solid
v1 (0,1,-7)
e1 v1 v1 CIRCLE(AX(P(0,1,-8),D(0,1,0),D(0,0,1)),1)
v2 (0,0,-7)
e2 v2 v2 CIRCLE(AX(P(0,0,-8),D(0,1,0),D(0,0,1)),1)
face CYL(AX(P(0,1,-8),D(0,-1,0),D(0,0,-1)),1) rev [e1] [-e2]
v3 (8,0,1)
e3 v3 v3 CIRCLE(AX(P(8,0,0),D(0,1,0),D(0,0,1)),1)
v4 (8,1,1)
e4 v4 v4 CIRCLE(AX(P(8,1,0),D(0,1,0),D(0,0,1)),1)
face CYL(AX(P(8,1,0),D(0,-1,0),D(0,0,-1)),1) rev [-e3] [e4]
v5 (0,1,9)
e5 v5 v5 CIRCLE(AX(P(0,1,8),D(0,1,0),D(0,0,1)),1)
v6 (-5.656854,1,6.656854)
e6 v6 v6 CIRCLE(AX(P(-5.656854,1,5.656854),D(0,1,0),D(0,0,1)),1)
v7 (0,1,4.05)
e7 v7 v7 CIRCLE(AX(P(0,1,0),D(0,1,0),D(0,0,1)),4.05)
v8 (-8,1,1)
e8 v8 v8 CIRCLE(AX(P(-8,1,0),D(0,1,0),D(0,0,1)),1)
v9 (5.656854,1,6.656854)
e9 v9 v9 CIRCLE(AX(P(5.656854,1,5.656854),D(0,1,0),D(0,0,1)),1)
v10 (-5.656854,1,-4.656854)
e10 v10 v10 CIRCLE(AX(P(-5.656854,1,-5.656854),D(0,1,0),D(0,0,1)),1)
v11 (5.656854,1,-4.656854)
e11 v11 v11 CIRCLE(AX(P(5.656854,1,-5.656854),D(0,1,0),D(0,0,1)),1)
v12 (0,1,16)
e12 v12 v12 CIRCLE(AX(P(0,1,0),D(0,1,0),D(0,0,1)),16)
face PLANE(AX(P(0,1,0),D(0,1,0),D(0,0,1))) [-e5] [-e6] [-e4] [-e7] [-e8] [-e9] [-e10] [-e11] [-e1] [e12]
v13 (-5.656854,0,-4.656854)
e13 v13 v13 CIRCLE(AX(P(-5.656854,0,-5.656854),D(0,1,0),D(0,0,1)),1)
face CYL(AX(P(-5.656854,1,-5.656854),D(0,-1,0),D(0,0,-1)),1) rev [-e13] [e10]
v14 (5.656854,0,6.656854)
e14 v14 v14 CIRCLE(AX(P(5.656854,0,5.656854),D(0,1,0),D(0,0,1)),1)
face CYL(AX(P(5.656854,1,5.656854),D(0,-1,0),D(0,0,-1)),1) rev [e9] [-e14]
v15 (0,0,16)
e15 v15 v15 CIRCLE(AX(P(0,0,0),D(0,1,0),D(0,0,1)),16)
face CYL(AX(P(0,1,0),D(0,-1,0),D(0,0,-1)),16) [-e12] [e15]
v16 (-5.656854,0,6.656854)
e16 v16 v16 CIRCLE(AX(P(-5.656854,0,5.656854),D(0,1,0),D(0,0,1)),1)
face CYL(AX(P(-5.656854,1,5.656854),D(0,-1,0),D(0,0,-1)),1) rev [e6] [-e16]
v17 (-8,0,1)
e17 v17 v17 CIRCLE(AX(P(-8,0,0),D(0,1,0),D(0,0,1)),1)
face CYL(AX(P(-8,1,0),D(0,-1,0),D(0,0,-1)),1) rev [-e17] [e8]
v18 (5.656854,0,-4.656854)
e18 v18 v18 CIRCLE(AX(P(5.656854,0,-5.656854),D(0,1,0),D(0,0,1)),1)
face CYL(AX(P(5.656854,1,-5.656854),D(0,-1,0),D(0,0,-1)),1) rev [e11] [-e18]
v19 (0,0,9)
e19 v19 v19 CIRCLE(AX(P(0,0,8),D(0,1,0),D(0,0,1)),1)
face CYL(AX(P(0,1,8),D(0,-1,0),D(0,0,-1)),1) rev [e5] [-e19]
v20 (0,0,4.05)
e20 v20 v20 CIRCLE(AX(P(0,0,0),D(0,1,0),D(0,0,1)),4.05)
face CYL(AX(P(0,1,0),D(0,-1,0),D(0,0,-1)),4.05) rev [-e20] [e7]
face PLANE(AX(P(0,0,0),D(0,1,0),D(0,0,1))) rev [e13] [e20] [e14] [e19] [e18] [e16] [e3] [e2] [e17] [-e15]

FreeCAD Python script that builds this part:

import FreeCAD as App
import Part
import Sketcher
from FreeCAD import Vector
Q = App.Units.Quantity

doc = App.newDocument("Part")
body = doc.addObject("PartDesign::Body", "Body")

sketch1 = body.newObject("Sketcher::SketchObject", "Sketch")
sketch1.AttachmentSupport = (doc.getObject("XZ_Plane"), [""])
sketch1.MapMode = "FlatFace"
sketch1.addGeometry([
    Part.Circle(Vector(0, 0, 0), Vector(0, 0, 1), 16),
    Part.Circle(Vector(-5.7, -5.7, 0), Vector(0, 0, 1), 1),
    Part.Circle(Vector(0, -8, 0), Vector(0, 0, 1), 1),
    Part.Circle(Vector(-8, 0, 0), Vector(0, 0, 1), 1),
    Part.Circle(Vector(-5.7, 5.7, 0), Vector(0, 0, 1), 1),
    Part.Circle(Vector(5.7, -5.7, 0), Vector(0, 0, 1), 1),
    Part.Circle(Vector(0, 0, 0), Vector(0, 0, 1), 4),
    Part.Circle(Vector(0, 8, 0), Vector(0, 0, 1), 1),
    Part.Circle(Vector(8, 0, 0), Vector(0, 0, 1), 1),
    Part.Circle(Vector(5.7, 5.7, 0), Vector(0, 0, 1), 1),
], False)
sketch1.addConstraint([
    Sketcher.Constraint("Coincident", 0, 3, -1, 1),
    Sketcher.Constraint("Coincident", 6, 3, -1, 1),
    Sketcher.Constraint("Equal", 1, 2),
    Sketcher.Constraint("Equal", 2, 3),
    Sketcher.Constraint("Equal", 3, 4),
    Sketcher.Constraint("Equal", 4, 5),
    Sketcher.Constraint("Equal", 5, 7),
    Sketcher.Constraint("Equal", 7, 8),
    Sketcher.Constraint("Equal", 8, 9),
    Sketcher.Constraint("Symmetric", 4, 3, 5, 3, -1, 1),
    Sketcher.Constraint("Symmetric", 2, 3, 7, 3, -1, 1),
    Sketcher.Constraint("Symmetric", 3, 3, 8, 3, -1, 1),
    Sketcher.Constraint("Symmetric", 1, 3, 9, 3, -1, 1),
    Sketcher.Constraint("Symmetric", 1, 3, 5, 3, -2),
    Sketcher.Constraint("PointOnObject", 2, 3, -2),
    Sketcher.Constraint("PointOnObject", 3, 3, -1),
    Sketcher.Constraint("Diameter", 0, Q("32 mm")),
    Sketcher.Constraint("Diameter", 1, Q("2 mm")),
    Sketcher.Constraint("Diameter", 6, Q("8.1 mm")),
    Sketcher.Constraint("DistanceY", 2, 3, -1, 1, Q("8 mm")),
    Sketcher.Constraint("DistanceX", 3, 3, -1, 1, Q("8 mm")),
    Sketcher.Constraint("DistanceY", 1, 3, 4, 3, Q("11.313708 mm")),
    Sketcher.Constraint("DistanceX", 1, 3, 5, 3, Q("11.313708 mm")),
])
pad1 = body.newObject("PartDesign::Pad", "Pad")
pad1.Profile = sketch1
pad1.Length = 1
pad1.Reversed = True

doc.recompute()
